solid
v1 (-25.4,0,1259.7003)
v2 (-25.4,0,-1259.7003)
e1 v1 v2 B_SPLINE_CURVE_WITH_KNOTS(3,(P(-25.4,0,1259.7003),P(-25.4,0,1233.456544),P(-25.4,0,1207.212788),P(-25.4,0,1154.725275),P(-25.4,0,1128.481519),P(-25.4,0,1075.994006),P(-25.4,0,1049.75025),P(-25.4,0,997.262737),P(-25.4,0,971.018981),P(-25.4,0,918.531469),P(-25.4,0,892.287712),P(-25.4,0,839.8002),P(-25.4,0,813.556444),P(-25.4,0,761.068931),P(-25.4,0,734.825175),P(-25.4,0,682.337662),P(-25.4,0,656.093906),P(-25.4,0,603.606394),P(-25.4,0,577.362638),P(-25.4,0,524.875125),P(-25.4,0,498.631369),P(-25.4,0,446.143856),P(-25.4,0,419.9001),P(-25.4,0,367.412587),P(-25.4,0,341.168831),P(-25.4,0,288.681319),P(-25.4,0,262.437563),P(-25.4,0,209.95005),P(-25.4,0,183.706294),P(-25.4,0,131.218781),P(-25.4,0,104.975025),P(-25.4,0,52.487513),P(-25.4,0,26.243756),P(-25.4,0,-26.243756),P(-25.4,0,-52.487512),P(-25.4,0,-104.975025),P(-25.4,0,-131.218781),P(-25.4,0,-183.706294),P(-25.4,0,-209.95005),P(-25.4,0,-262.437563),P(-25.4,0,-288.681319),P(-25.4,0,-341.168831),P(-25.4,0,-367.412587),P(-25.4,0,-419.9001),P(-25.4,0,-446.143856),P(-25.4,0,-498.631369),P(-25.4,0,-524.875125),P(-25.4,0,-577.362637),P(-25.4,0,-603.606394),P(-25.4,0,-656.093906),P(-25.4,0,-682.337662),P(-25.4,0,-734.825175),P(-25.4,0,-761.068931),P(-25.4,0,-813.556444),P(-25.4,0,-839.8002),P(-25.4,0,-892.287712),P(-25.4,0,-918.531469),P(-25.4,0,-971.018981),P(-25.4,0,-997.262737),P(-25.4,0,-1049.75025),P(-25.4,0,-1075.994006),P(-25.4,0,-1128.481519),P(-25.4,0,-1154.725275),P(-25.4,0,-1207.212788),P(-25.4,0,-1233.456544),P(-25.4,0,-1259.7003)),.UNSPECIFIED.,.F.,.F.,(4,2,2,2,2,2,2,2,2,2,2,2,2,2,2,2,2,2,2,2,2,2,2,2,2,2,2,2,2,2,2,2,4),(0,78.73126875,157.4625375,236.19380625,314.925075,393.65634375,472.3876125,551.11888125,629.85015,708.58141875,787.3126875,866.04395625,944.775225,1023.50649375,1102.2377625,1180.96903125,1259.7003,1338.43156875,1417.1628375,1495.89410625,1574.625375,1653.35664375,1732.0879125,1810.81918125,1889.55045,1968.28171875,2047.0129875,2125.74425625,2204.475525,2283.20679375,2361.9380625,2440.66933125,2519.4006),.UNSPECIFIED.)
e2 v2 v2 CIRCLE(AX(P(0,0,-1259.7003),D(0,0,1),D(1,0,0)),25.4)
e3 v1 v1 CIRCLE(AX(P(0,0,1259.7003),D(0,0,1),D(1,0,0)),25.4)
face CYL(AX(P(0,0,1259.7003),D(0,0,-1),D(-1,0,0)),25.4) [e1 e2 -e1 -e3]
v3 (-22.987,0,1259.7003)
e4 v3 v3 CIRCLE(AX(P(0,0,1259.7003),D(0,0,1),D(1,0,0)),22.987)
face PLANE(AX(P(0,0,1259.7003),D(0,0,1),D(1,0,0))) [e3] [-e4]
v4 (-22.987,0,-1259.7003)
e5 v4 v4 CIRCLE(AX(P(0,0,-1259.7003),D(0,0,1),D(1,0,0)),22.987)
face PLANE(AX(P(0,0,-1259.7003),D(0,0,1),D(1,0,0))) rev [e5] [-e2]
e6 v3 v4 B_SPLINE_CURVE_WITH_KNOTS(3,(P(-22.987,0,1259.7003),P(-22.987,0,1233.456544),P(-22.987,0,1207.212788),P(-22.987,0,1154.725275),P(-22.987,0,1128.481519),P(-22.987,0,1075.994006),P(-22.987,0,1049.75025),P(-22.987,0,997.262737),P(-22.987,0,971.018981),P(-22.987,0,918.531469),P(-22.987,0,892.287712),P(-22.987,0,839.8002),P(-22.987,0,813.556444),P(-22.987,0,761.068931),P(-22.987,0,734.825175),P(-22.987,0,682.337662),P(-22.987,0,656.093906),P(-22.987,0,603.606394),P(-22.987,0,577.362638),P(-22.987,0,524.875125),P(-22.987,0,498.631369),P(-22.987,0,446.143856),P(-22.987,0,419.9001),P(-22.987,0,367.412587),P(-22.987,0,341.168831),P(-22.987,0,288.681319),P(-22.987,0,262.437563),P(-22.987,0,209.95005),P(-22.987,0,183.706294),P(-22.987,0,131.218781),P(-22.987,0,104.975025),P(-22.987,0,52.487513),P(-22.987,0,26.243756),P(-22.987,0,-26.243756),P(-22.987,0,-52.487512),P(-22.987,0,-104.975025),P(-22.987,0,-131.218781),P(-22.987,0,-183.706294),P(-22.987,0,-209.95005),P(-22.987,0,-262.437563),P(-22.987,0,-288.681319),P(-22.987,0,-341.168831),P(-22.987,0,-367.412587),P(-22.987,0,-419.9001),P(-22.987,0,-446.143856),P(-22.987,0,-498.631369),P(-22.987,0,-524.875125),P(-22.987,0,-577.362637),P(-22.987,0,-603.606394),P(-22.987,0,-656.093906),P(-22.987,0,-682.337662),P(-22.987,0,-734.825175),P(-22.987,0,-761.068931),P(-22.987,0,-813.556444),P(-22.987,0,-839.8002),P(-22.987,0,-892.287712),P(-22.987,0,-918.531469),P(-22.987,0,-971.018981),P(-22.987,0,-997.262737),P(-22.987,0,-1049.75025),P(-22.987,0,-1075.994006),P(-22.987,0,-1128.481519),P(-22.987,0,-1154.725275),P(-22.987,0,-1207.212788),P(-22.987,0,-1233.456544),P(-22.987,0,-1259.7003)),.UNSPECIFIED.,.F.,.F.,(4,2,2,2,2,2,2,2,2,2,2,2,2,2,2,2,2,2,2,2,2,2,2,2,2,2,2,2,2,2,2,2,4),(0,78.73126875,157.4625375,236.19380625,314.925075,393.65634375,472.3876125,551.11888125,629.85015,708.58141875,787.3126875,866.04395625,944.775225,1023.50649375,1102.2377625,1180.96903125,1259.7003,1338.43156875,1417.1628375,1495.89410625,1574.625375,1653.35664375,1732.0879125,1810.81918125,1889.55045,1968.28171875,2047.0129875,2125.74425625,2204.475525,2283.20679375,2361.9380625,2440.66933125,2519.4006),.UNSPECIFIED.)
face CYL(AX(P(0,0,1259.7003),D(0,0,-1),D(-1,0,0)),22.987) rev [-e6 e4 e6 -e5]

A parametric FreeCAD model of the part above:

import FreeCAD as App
import Part
import Sketcher
Q = App.Units.Quantity

doc = App.newDocument("Part")
body = doc.addObject("PartDesign::Body", "Body")

# Sketch on XY plane
sketch1 = body.newObject("Sketcher::SketchObject", "Sketch")
sketch1.AttachmentSupport = (doc.getObject("XY_Plane"), [""])
sketch1.MapMode = "FlatFace"
sketch1.addGeometry([
    Part.Circle(App.Vector(0, 0, 0), App.Vector(0, 0, 1), 25),
    Part.Circle(App.Vector(0, 0, 0), App.Vector(0, 0, 1), 23),
], False)
sketch1.addConstraint([
    Sketcher.Constraint("Coincident", 0, 3, -1, 1),
    Sketcher.Constraint("Coincident", 1, 3, -1, 1),
    Sketcher.Constraint("Diameter", 0, Q("2 in")),
    Sketcher.Constraint("Diameter", 1, Q("1.81 in")),
])
pad1 = body.newObject("PartDesign::Pad", "Pad")
pad1.Profile = sketch1
pad1.Length = Q("99.189 in")
pad1.Midplane = True

doc.recompute()
